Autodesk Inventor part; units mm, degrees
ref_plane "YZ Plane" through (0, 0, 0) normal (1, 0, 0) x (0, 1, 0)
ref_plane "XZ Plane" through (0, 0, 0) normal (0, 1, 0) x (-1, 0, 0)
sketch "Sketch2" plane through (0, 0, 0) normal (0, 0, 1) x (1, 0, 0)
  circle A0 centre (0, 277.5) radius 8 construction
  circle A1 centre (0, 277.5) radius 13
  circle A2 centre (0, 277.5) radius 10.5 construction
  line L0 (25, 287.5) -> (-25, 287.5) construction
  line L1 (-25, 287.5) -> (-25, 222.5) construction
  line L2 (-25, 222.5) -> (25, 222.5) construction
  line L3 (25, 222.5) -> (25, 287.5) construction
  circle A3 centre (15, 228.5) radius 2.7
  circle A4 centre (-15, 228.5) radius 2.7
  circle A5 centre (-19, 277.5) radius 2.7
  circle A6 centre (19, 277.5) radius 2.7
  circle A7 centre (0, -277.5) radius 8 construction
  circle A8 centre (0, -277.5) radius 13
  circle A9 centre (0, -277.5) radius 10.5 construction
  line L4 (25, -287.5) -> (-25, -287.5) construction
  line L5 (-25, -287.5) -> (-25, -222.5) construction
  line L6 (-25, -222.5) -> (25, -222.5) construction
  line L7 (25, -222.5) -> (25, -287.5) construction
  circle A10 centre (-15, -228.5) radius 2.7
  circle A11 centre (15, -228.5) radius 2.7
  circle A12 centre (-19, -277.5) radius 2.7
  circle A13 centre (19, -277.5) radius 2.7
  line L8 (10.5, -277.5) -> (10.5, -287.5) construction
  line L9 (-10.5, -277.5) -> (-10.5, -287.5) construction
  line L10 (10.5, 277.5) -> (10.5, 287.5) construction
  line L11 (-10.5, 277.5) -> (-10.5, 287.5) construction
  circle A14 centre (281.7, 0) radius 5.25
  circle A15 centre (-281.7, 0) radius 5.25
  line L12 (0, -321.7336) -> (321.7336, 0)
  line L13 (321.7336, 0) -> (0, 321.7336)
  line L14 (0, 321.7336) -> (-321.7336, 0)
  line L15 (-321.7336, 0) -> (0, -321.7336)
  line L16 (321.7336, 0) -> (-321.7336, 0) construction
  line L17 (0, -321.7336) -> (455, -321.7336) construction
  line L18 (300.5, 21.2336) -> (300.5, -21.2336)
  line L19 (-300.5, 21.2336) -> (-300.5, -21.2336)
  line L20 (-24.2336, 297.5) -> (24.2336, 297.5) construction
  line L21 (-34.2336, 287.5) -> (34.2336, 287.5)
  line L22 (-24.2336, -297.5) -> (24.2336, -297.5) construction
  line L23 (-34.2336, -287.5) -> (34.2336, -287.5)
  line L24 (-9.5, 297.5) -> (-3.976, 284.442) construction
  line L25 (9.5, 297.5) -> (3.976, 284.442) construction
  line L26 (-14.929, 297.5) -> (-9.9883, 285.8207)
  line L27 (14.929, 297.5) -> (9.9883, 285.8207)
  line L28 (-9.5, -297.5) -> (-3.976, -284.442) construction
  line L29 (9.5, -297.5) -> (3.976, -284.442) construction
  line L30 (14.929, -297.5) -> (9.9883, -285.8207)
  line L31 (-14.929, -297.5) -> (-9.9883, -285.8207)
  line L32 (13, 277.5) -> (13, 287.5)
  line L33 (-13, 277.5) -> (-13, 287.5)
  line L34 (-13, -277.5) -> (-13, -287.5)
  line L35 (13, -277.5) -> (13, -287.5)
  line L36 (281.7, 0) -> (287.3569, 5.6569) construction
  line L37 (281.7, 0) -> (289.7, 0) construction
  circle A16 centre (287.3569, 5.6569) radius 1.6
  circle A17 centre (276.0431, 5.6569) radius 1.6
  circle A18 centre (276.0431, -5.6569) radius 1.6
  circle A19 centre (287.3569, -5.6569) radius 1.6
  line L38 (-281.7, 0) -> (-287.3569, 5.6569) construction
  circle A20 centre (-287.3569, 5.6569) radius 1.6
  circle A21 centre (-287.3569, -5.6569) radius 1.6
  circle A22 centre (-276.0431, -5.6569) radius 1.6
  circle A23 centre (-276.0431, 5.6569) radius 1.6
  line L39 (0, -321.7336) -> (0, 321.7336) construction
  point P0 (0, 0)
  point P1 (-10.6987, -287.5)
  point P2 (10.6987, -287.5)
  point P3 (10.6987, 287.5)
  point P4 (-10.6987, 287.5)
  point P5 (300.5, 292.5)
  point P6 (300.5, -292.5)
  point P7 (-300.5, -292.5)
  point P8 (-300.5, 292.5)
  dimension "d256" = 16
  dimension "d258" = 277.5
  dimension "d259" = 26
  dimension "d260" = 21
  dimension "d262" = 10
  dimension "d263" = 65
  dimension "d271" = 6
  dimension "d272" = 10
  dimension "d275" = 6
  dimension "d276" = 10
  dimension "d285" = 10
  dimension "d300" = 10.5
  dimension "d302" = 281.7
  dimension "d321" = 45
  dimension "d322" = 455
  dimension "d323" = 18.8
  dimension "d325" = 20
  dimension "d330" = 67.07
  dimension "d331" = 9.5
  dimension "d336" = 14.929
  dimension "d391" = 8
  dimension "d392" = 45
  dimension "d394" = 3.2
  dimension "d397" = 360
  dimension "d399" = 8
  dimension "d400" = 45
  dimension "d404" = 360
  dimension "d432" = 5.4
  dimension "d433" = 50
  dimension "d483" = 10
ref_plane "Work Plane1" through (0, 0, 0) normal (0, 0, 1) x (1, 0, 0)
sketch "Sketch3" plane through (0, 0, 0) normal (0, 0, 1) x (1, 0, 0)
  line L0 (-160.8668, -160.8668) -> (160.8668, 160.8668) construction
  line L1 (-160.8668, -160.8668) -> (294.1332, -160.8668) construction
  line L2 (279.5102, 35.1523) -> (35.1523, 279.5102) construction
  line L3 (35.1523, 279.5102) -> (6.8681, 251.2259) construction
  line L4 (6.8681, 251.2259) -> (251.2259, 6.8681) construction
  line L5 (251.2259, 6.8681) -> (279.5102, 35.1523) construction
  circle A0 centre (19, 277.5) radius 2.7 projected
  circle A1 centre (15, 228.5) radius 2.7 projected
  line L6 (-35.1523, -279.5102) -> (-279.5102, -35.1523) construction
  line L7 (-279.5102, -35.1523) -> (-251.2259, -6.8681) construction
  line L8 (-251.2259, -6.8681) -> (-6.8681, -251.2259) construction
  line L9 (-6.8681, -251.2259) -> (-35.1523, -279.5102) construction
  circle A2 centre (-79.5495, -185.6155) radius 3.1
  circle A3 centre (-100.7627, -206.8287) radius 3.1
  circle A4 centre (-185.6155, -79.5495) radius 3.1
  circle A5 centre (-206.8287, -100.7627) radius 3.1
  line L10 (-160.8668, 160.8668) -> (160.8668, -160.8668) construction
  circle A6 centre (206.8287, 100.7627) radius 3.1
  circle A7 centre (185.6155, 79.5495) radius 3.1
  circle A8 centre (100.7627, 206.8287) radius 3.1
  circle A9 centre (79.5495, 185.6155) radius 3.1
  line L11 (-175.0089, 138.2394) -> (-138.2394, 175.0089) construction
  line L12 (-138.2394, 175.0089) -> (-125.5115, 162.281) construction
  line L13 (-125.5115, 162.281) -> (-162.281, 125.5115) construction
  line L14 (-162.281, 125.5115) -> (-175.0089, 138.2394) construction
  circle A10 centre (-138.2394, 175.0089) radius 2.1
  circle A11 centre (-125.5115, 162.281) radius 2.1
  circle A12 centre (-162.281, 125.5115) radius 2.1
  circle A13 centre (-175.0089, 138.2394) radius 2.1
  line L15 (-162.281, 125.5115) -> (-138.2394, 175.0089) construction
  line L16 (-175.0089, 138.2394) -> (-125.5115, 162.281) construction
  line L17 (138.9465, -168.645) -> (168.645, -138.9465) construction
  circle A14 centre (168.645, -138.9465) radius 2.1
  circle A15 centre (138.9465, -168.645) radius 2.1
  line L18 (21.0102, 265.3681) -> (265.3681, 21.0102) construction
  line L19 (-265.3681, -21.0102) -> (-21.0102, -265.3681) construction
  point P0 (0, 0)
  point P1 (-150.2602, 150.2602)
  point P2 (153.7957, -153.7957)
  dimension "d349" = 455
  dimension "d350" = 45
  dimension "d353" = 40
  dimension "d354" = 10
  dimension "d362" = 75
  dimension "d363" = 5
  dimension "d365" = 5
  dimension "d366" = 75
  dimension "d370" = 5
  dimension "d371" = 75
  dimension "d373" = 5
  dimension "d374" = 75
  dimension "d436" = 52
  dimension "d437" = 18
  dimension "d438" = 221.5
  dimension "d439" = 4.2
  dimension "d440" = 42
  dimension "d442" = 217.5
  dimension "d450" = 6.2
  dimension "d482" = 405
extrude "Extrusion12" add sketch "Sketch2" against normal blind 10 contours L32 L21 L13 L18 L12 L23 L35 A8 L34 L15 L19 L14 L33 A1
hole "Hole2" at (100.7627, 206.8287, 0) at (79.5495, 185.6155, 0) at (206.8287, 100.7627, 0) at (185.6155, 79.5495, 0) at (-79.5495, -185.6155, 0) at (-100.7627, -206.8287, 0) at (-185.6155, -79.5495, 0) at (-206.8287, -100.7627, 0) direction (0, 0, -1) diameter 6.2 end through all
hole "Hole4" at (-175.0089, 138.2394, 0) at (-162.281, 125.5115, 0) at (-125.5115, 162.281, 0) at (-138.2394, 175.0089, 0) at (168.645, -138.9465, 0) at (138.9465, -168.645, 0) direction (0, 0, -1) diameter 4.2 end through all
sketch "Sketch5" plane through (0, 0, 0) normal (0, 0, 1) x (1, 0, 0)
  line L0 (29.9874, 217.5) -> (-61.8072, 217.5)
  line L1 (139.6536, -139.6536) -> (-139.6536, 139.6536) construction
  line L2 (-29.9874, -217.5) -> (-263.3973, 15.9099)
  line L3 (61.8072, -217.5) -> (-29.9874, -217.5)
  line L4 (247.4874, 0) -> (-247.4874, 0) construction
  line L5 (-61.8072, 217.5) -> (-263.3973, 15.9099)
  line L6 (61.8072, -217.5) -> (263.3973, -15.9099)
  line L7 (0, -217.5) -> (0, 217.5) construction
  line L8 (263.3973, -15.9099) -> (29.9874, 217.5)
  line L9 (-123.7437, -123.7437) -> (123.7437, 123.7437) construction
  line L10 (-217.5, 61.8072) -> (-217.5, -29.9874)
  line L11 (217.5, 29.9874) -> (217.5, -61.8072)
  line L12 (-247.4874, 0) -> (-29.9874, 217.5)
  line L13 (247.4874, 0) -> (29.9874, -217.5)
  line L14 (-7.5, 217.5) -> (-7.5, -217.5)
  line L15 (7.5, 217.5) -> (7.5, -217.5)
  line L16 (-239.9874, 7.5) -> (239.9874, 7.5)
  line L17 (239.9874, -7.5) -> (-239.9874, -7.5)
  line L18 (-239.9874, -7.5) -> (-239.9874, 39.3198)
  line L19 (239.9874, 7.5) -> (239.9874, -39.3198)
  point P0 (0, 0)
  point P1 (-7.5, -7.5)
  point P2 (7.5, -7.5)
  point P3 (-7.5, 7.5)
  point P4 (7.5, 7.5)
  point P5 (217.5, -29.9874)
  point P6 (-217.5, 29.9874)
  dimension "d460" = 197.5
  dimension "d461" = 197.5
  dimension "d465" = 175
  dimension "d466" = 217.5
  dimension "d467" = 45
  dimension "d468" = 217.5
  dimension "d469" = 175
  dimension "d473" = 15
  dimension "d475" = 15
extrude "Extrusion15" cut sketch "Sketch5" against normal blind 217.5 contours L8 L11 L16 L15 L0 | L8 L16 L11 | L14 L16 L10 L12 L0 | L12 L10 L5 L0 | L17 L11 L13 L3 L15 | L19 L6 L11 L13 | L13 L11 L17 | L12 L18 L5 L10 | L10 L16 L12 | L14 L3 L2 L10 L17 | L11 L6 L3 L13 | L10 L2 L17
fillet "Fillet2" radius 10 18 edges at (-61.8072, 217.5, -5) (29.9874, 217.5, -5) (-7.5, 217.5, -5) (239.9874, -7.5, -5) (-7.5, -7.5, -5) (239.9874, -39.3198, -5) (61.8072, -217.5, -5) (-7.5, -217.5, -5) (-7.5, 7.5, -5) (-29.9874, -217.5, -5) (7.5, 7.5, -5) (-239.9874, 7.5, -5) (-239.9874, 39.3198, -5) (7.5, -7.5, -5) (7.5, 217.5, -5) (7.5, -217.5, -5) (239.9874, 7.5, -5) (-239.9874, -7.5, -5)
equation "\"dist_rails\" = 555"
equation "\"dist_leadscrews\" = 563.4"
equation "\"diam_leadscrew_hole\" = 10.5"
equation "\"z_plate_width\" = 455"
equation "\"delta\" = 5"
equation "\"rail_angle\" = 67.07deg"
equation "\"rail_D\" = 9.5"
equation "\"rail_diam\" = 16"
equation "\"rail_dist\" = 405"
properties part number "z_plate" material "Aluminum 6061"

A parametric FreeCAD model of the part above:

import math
import FreeCAD as App
import Part
import Sketcher
from FreeCAD import Vector
Q = App.Units.Quantity


def edges_at(feature, points):
    """Names of the edges that pass closest to the given points."""
    edges = feature.Shape.Edges
    near = lambda p: min(range(len(edges)), key=lambda i: edges[i].distToShape(Part.Vertex(*p))[0])
    return sorted({f"Edge{near(p) + 1}" for p in points})


def add_polygon(sketch, points):
    """Adds a closed chain of lines whose ends are joined by coincident constraints."""
    first, n = sketch.GeometryCount, len(points)
    for a, b in zip(points, points[1:] + points[:1]):
        sketch.addGeometry(Part.LineSegment(App.Vector(*a, 0), App.Vector(*b, 0)), False)
    for i in range(n):
        sketch.addConstraint(Sketcher.Constraint("Coincident", first + i, 2, first + (i + 1) % n, 1))

doc = App.newDocument("Part")
body = doc.addObject("PartDesign::Body", "Body")

# Sketch on XY plane
sketch1 = body.newObject("Sketcher::SketchObject", "Sketch")
sketch1.AttachmentSupport = (doc.getObject("XY_Plane"), [""])
sketch1.MapMode = "FlatFace"
sketch1.addGeometry([
    Part.LineSegment(Vector(13, 287.5, 0), Vector(13, 277.5, 0)),  # 0
    Part.ArcOfCircle(Part.Circle(Vector(0, 277.5, 0), Vector(0, 0, 1), 13), math.radians(180), math.radians(360)),  # 1
    Part.LineSegment(Vector(-13, 277.5, 0), Vector(-13, 287.5, 0)),  # 2
    Part.LineSegment(Vector(-13, 287.5, 0), Vector(-34.2, 287.5, 0)),  # 3
    Part.LineSegment(Vector(-34.2, 287.5, 0), Vector(-300.5, 21.2, 0)),  # 4
    Part.LineSegment(Vector(-300.5, 21.2, 0), Vector(-300.5, -21.2, 0)),  # 5
    Part.LineSegment(Vector(-300.5, -21.2, 0), Vector(-34.2, -287.5, 0)),  # 6
    Part.LineSegment(Vector(-34.2, -287.5, 0), Vector(-13, -287.5, 0)),  # 7
    Part.LineSegment(Vector(-13, -287.5, 0), Vector(-13, -277.5, 0)),  # 8
    Part.ArcOfCircle(Part.Circle(Vector(0, -277.5, 0), Vector(0, 0, 1), 13), math.radians(0), math.radians(180)),  # 9
    Part.LineSegment(Vector(13, -277.5, 0), Vector(13, -287.5, 0)),  # 10
    Part.LineSegment(Vector(13, -287.5, 0), Vector(34.2, -287.5, 0)),  # 11
    Part.LineSegment(Vector(34.2, -287.5, 0), Vector(300.5, -21.2, 0)),  # 12
    Part.LineSegment(Vector(300.5, -21.2, 0), Vector(300.5, 21.2, 0)),  # 13
    Part.LineSegment(Vector(300.5, 21.2, 0), Vector(34.2, 287.5, 0)),  # 14
    Part.LineSegment(Vector(34.2, 287.5, 0), Vector(13, 287.5, 0)),  # 15
    Part.Circle(Vector(-19, -277.5, 0), Vector(0, 0, 1), 2.7),  # 16
    Part.Circle(Vector(-15, -228.5, 0), Vector(0, 0, 1), 2.7),  # 17
    Part.Circle(Vector(-287.4, -5.7, 0), Vector(0, 0, 1), 1.6),  # 18
    Part.Circle(Vector(-276, -5.7, 0), Vector(0, 0, 1), 1.6),  # 19
    Part.Circle(Vector(19, -277.5, 0), Vector(0, 0, 1), 2.7),  # 20
    Part.Circle(Vector(15, -228.5, 0), Vector(0, 0, 1), 2.7),  # 21
    Part.Circle(Vector(276, -5.7, 0), Vector(0, 0, 1), 1.6),  # 22
    Part.Circle(Vector(287.4, -5.7, 0), Vector(0, 0, 1), 1.6),  # 23
    Part.Circle(Vector(-281.7, 0, 0), Vector(0, 0, 1), 5.2),  # 24
    Part.Circle(Vector(-287.4, 5.7, 0), Vector(0, 0, 1), 1.6),  # 25
    Part.Circle(Vector(-276, 5.7, 0), Vector(0, 0, 1), 1.6),  # 26
    Part.Circle(Vector(-15, 228.5, 0), Vector(0, 0, 1), 2.7),  # 27
    Part.Circle(Vector(-19, 277.5, 0), Vector(0, 0, 1), 2.7),  # 28
    Part.Circle(Vector(276, 5.7, 0), Vector(0, 0, 1), 1.6),  # 29
    Part.Circle(Vector(281.7, 0, 0), Vector(0, 0, 1), 5.2),  # 30
    Part.Circle(Vector(287.4, 5.7, 0), Vector(0, 0, 1), 1.6),  # 31
    Part.Circle(Vector(15, 228.5, 0), Vector(0, 0, 1), 2.7),  # 32
    Part.Circle(Vector(19, 277.5, 0), Vector(0, 0, 1), 2.7),  # 33
], False)
sketch1.addConstraint([
    Sketcher.Constraint("Tangent", 0, 2, 1, 2),
    Sketcher.Constraint("Tangent", 1, 1, 2, 1),
    Sketcher.Constraint("Coincident", 2, 2, 3, 1),
    Sketcher.Constraint("Coincident", 3, 2, 4, 1),
    Sketcher.Constraint("Coincident", 4, 2, 5, 1),
    Sketcher.Constraint("Coincident", 5, 2, 6, 1),
    Sketcher.Constraint("Coincident", 6, 2, 7, 1),
    Sketcher.Constraint("Coincident", 7, 2, 8, 1),
    Sketcher.Constraint("Tangent", 8, 2, 9, 2),
    Sketcher.Constraint("Tangent", 9, 1, 10, 1),
    Sketcher.Constraint("Coincident", 10, 2, 11, 1),
    Sketcher.Constraint("Coincident", 11, 2, 12, 1),
    Sketcher.Constraint("Coincident", 12, 2, 13, 1),
    Sketcher.Constraint("Coincident", 13, 2, 14, 1),
    Sketcher.Constraint("Coincident", 14, 2, 15, 1),
    Sketcher.Constraint("Coincident", 15, 2, 0, 1),
    Sketcher.Constraint("Vertical", 0),
    Sketcher.Constraint("Vertical", 2),
    Sketcher.Constraint("Horizontal", 3),
    Sketcher.Constraint("Vertical", 5),
    Sketcher.Constraint("Horizontal", 7),
    Sketcher.Constraint("Vertical", 8),
    Sketcher.Constraint("Vertical", 10),
    Sketcher.Constraint("Horizontal", 11),
    Sketcher.Constraint("Vertical", 13),
    Sketcher.Constraint("Horizontal", 15),
    Sketcher.Constraint("Equal", 1, 9),
    Sketcher.Constraint("Equal", 16, 17),
    Sketcher.Constraint("Equal", 18, 19),
    Sketcher.Constraint("Equal", 17, 20),
    Sketcher.Constraint("Equal", 20, 21),
    Sketcher.Constraint("Equal", 19, 22),
    Sketcher.Constraint("Equal", 22, 23),
    Sketcher.Constraint("Equal", 23, 25),
    Sketcher.Constraint("Equal", 25, 26),
    Sketcher.Constraint("Equal", 21, 27),
    Sketcher.Constraint("Equal", 27, 28),
    Sketcher.Constraint("Equal", 26, 29),
    Sketcher.Constraint("Equal", 24, 30),
    Sketcher.Constraint("Equal", 29, 31),
    Sketcher.Constraint("Equal", 28, 32),
    Sketcher.Constraint("Equal", 32, 33),
    Sketcher.Constraint("Symmetric", 1, 3, 9, 3, -1, 1),
    Sketcher.Constraint("Symmetric", 23, 3, 25, 3, -1, 1),
    Sketcher.Constraint("Symmetric", 22, 3, 26, 3, -1, 1),
    Sketcher.Constraint("Symmetric", 21, 3, 27, 3, -1, 1),
    Sketcher.Constraint("Symmetric", 20, 3, 28, 3, -1, 1),
    Sketcher.Constraint("Symmetric", 19, 3, 29, 3, -1, 1),
    Sketcher.Constraint("Symmetric", 24, 3, 30, 3, -1, 1),
    Sketcher.Constraint("Symmetric", 18, 3, 31, 3, -1, 1),
    Sketcher.Constraint("Symmetric", 17, 3, 32, 3, -1, 1),
    Sketcher.Constraint("Symmetric", 16, 3, 33, 3, -1, 1),
    Sketcher.Constraint("Symmetric", 3, 2, 11, 2, -1, 1),
    Sketcher.Constraint("Symmetric", 4, 2, 12, 2, -1, 1),
    Sketcher.Constraint("Symmetric", 6, 2, 14, 2, -1, 1),
    Sketcher.Constraint("Symmetric", 16, 3, 20, 3, -2),
    Sketcher.Constraint("Symmetric", 17, 3, 21, 3, -2),
    Sketcher.Constraint("Symmetric", 19, 3, 22, 3, -2),
    Sketcher.Constraint("Symmetric", 18, 3, 23, 3, -2),
    Sketcher.Constraint("Symmetric", 7, 2, 10, 2, -2),
    Sketcher.Constraint("PointOnObject", 24, 3, -1),
    Sketcher.Constraint("Perpendicular", 4, 6),
    Sketcher.Constraint("Perpendicular", 12, 14),
    Sketcher.Constraint("Horizontal", 9, 3, 16, 3),
    Sketcher.Constraint("Horizontal", 18, 3, 19, 3),
    Sketcher.Constraint("Horizontal", 5, 2, 12, 2),
    Sketcher.Constraint("Vertical", 3, 2, 6, 2),
    Sketcher.Constraint("Radius", 1, 13.0),
    Sketcher.Constraint("Diameter", 16, 5.4),
    Sketcher.Constraint("Diameter", 18, 3.2),
    Sketcher.Constraint("Diameter", 24, 10.5),
    Sketcher.Constraint("DistanceY", 0, 2, 0, 1, 10.0),
    Sketcher.Constraint("DistanceX", 0, 2, 33, 3, 6.0),
    Sketcher.Constraint("DistanceY", -1, 1, 1, 3, 277.5),
    Sketcher.Constraint("DistanceX", 24, 3, -1, 1, 281.7),
    Sketcher.Constraint("DistanceX", 4, 2, 24, 3, 18.8),
    Sketcher.Constraint("DistanceX", 17, 3, -1, 1, 15.0),
    Sketcher.Constraint("DistanceY", 16, 3, 17, 3, 49.0),
    Sketcher.Constraint("DistanceX", 3, 2, 3, 1, 21.2336),
    Sketcher.Constraint("DistanceX", 18, 3, -1, 1, 287.357),
    Sketcher.Constraint("DistanceY", 18, 3, -1, 1, 5.657),
    Sketcher.Constraint("DistanceX", 19, 3, -1, 1, 276.043),
])
pad1 = body.newObject("PartDesign::Pad", "Pad")
pad1.Profile = sketch1
pad1.Length = 10
pad1.Reversed = True

# Sketch on XY plane
sketch2 = body.newObject("Sketcher::SketchObject", "Sketch001")
sketch2.AttachmentSupport = (doc.getObject("XY_Plane"), [""])
sketch2.MapMode = "FlatFace"
sketch2.addGeometry([
    Part.Circle(Vector(100.8, 206.8, 0), Vector(0, 0, 1), 3.1),  # 0
    Part.Circle(Vector(79.5, 185.6, 0), Vector(0, 0, 1), 3.1),  # 1
    Part.Circle(Vector(206.8, 100.8, 0), Vector(0, 0, 1), 3.1),  # 2
    Part.Circle(Vector(185.6, 79.5, 0), Vector(0, 0, 1), 3.1),  # 3
    Part.Circle(Vector(-79.5, -185.6, 0), Vector(0, 0, 1), 3.1),  # 4
    Part.Circle(Vector(-100.8, -206.8, 0), Vector(0, 0, 1), 3.1),  # 5
    Part.Circle(Vector(-185.6, -79.5, 0), Vector(0, 0, 1), 3.1),  # 6
    Part.Circle(Vector(-206.8, -100.8, 0), Vector(0, 0, 1), 3.1),  # 7
], False)
sketch2.addConstraint([
    Sketcher.Constraint("Equal", 0, 1),
    Sketcher.Constraint("Equal", 1, 2),
    Sketcher.Constraint("Equal", 2, 3),
    Sketcher.Constraint("Equal", 3, 4),
    Sketcher.Constraint("Equal", 4, 5),
    Sketcher.Constraint("Equal", 5, 6),
    Sketcher.Constraint("Equal", 6, 7),
    Sketcher.Constraint("Symmetric", 1, 3, 4, 3, -1, 1),
    Sketcher.Constraint("Symmetric", 0, 3, 5, 3, -1, 1),
    Sketcher.Constraint("Symmetric", 3, 3, 6, 3, -1, 1),
    Sketcher.Constraint("Symmetric", 2, 3, 7, 3, -1, 1),
    Sketcher.Constraint("Diameter", 0, 6.2),
    Sketcher.Constraint("DistanceX", 0, 3, 2, 3, 106.066),
    Sketcher.Constraint("DistanceY", 2, 3, 0, 3, 106.066),
    Sketcher.Constraint("DistanceX", 1, 3, 3, 3, 106.066),
    Sketcher.Constraint("DistanceY", 3, 3, 1, 3, 106.066),
    Sketcher.Constraint("DistanceX", 4, 3, 3, 3, 265.165),
    Sketcher.Constraint("DistanceY", 4, 3, 3, 3, 265.165),
    Sketcher.Constraint("DistanceX", -1, 1, 0, 3, 100.7627),
    Sketcher.Constraint("DistanceY", -1, 1, 0, 3, 206.8287),
])
doc.recompute()
hole = body.newObject("PartDesign::Hole", "Hole")
hole.Profile = sketch2
hole.ThreadType = "None"
hole.Diameter = 6.2
hole.DepthType = "ThroughAll"

# Sketch on XY plane
sketch3 = body.newObject("Sketcher::SketchObject", "Sketch002")
sketch3.AttachmentSupport = (doc.getObject("XY_Plane"), [""])
sketch3.MapMode = "FlatFace"
sketch3.addGeometry([
    Part.Circle(Vector(-175, 138.2, 0), Vector(0, 0, 1), 2.1),  # 0
    Part.Circle(Vector(-162.3, 125.5, 0), Vector(0, 0, 1), 2.1),  # 1
    Part.Circle(Vector(-125.5, 162.3, 0), Vector(0, 0, 1), 2.1),  # 2
    Part.Circle(Vector(-138.2, 175, 0), Vector(0, 0, 1), 2.1),  # 3
    Part.Circle(Vector(168.6, -138.9, 0), Vector(0, 0, 1), 2.1),  # 4
    Part.Circle(Vector(138.9, -168.6, 0), Vector(0, 0, 1), 2.1),  # 5
], False)
sketch3.addConstraint([
    Sketcher.Constraint("Equal", 0, 1),
    Sketcher.Constraint("Equal", 1, 2),
    Sketcher.Constraint("Equal", 2, 3),
    Sketcher.Constraint("Equal", 3, 4),
    Sketcher.Constraint("Equal", 4, 5),
    Sketcher.Constraint("Diameter", 0, 4.2),
    Sketcher.Constraint("DistanceX", 0, 3, -1, 1, 175.009),
    Sketcher.Constraint("DistanceX", 1, 3, -1, 1, 162.281),
    Sketcher.Constraint("DistanceY", -1, 1, 2, 3, 162.281),
    Sketcher.Constraint("DistanceY", -1, 1, 3, 3, 175.009),
    Sketcher.Constraint("DistanceX", -1, 1, 4, 3, 168.645),
    Sketcher.Constraint("DistanceY", 5, 3, -1, 1, 168.645),
    Sketcher.Constraint("DistanceY", 1, 3, 0, 3, 12.728),
    Sketcher.Constraint("DistanceX", 3, 3, 2, 3, 12.728),
    Sketcher.Constraint("DistanceY", 4, 3, 1, 3, 264.458),
    Sketcher.Constraint("DistanceX", 2, 3, 5, 3, 264.458),
    Sketcher.Constraint("DistanceY", -1, 1, 0, 3, 138.2394),
    Sketcher.Constraint("DistanceX", 2, 3, -1, 1, 125.5115),
])
doc.recompute()
hole2 = body.newObject("PartDesign::Hole", "Hole001")
hole2.Profile = sketch3
hole2.ThreadType = "None"
hole2.Diameter = 4.2
hole2.DepthType = "ThroughAll"

# Sketch on XY plane
sketch4 = body.newObject("Sketcher::SketchObject", "Sketch003")
sketch4.AttachmentSupport = (doc.getObject("XY_Plane"), [""])
sketch4.MapMode = "FlatFace"
add_polygon(sketch4, [(30, 218), (8, 218), (8, 8), (240, 8)])  # lines 0-3
add_polygon(sketch4, [(-8, 8), (-8, 218), (-62, 218), (-240, 39), (-240, 8)])  # lines 4-8
add_polygon(sketch4, [(8, -8), (8, -218), (62, -218), (240, -39), (240, -8)])  # lines 9-13
add_polygon(sketch4, [(-8, -218), (-8, -8), (-240, -8), (-30, -218)])  # lines 14-17
sketch4.addConstraint([
    Sketcher.Constraint("Horizontal", 0),
    Sketcher.Constraint("Vertical", 1),
    Sketcher.Constraint("Horizontal", 2),
    Sketcher.Constraint("Vertical", 4),
    Sketcher.Constraint("Horizontal", 5),
    Sketcher.Constraint("Vertical", 7),
    Sketcher.Constraint("Horizontal", 8),
    Sketcher.Constraint("Vertical", 9),
    Sketcher.Constraint("Horizontal", 10),
    Sketcher.Constraint("Vertical", 12),
    Sketcher.Constraint("Horizontal", 13),
    Sketcher.Constraint("Vertical", 14),
    Sketcher.Constraint("Horizontal", 15),
    Sketcher.Constraint("Horizontal", 17),
    Sketcher.Constraint("Symmetric", 4, 2, 9, 2, -1, 1),
    Sketcher.Constraint("Symmetric", 6, 2, 11, 2, -1, 1),
    Sketcher.Constraint("Symmetric", 1, 2, 14, 2, -1, 1),
    Sketcher.Constraint("Symmetric", 3, 2, 16, 2, -1, 1),
    Sketcher.Constraint("Symmetric", 0, 2, 4, 2, -2),
    Sketcher.Constraint("Symmetric", 2, 2, 7, 2, -2),
    Sketcher.Constraint("Symmetric", 12, 2, 15, 2, -2),
    Sketcher.Constraint("Perpendicular", 3, 6),
    Sketcher.Constraint("Parallel", 6, 11),
    Sketcher.Constraint("Angle", 11, Q("45 deg")),
    Sketcher.Constraint("DistanceX", 4, 2, 0, 2, 15.0),
    Sketcher.Constraint("DistanceY", 12, 2, 2, 2, 15.0),
    Sketcher.Constraint("DistanceY", -1, 1, 0, 2, 217.5),
    Sketcher.Constraint("DistanceX", 0, 2, 0, 1, 22.4874),
    Sketcher.Constraint("DistanceX", 5, 2, 5, 1, 54.3072),
])
pocket1 = body.newObject("PartDesign::Pocket", "Pocket")
pocket1.Profile = sketch4
pocket1.Length = 217.5
doc.recompute()

fillet = body.newObject("PartDesign::Fillet", "Fillet")
fillet.Base = (pocket1, edges_at(pocket1, [
    (-61.807, 217.5, -5),
    (29.987, 217.5, -5),
    (-7.5, 217.5, -5),
    (239.987, -7.5, -5),
    (-7.5, -7.5, -5),
    (239.987, -39.32, -5),
    (61.807, -217.5, -5),
    (-7.5, -217.5, -5),
    (-7.5, 7.5, -5),
    (-29.987, -217.5, -5),
    (7.5, 7.5, -5),
    (-239.987, 7.5, -5),
    (-239.987, 39.32, -5),
    (7.5, -7.5, -5),
    (7.5, 217.5, -5),
    (7.5, -217.5, -5),
    (239.987, 7.5, -5),
    (-239.987, -7.5, -5),
]))
fillet.Radius = 10

doc.recompute()
